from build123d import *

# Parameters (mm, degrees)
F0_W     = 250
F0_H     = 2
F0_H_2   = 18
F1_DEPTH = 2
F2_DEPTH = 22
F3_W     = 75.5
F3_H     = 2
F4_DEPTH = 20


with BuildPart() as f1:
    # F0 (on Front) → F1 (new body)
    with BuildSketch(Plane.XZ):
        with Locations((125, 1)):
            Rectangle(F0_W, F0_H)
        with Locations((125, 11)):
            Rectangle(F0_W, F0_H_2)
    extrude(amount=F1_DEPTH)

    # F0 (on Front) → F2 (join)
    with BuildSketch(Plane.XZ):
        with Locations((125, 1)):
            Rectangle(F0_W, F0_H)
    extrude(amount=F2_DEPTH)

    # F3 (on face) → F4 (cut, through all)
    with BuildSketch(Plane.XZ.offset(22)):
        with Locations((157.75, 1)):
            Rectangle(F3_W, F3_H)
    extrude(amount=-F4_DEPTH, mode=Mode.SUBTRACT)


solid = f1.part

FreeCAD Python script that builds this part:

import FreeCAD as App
import Part
import Sketcher

V = App.Vector
Q = App.Units.Quantity


def add_polygon(sketch, points):
    """Adds a closed chain of lines whose ends are joined by coincident constraints."""
    first, n = sketch.GeometryCount, len(points)
    for a, b in zip(points, points[1:] + points[:1]):
        sketch.addGeometry(Part.LineSegment(App.Vector(*a, 0), App.Vector(*b, 0)), False)
    for i in range(n):
        sketch.addConstraint(Sketcher.Constraint("Coincident", first + i, 2, first + (i + 1) % n, 1))

doc = App.newDocument("Part")
body = doc.addObject("PartDesign::Body", "Body")

# Sketch on XZ plane
sketch1 = doc.addObject("Sketcher::SketchObject", "Sketch")
body.addObject(sketch1)
sketch1.AttachmentSupport = (doc.XZ_Plane, [""])
sketch1.MapMode = "FlatFace"
add_polygon(sketch1, [(0, 0), (250, 0), (250, 20), (0, 20)])  # lines 0-3
sketch1.addConstraint([
    Sketcher.Constraint("Horizontal", 0),
    Sketcher.Constraint("Vertical", 1),
    Sketcher.Constraint("Horizontal", 2),
    Sketcher.Constraint("Vertical", 3),
    Sketcher.Constraint("Coincident", 3, 2, -1, 1),
    Sketcher.Constraint("DistanceX", 0, 1, 0, 2, Q("250 mm")),
    Sketcher.Constraint("DistanceY", 1, 1, 1, 2, Q("20 mm")),
])
pad1 = doc.addObject("PartDesign::Pad", "Pad")
body.addObject(pad1)
pad1.Profile = sketch1
pad1.Length = 2

# Sketch on XZ plane
sketch2 = doc.addObject("Sketcher::SketchObject", "Sketch001")
body.addObject(sketch2)
sketch2.AttachmentSupport = (doc.XZ_Plane, [""])
sketch2.MapMode = "FlatFace"
add_polygon(sketch2, [(0, 2), (0, 0), (250, 0), (250, 2)])  # lines 0-3
sketch2.addConstraint([
    Sketcher.Constraint("Vertical", 0),
    Sketcher.Constraint("Horizontal", 1),
    Sketcher.Constraint("Vertical", 2),
    Sketcher.Constraint("Horizontal", 3),
    Sketcher.Constraint("Coincident", 0, 2, -1, 1),
    Sketcher.Constraint("DistanceX", 1, 1, 1, 2, Q("250 mm")),
    Sketcher.Constraint("DistanceY", 0, 2, 0, 1, Q("2 mm")),
])
pad2 = doc.addObject("PartDesign::Pad", "Pad001")
body.addObject(pad2)
pad2.Profile = sketch2
pad2.Length = 22

# Sketch on XZ plane
sketch3 = doc.addObject("Sketcher::SketchObject", "Sketch002")
body.addObject(sketch3)
sketch3.AttachmentSupport = (doc.XZ_Plane, [""])
sketch3.MapMode = "FlatFace"
sketch3.AttachmentOffset = App.Placement(V(0, 0, 22), App.Rotation())
add_polygon(sketch3, [(120, 2), (120, 0), (195.5, 0), (195.5, 2)])  # lines 0-3
sketch3.addConstraint([
    Sketcher.Constraint("Vertical", 0),
    Sketcher.Constraint("Horizontal", 1),
    Sketcher.Constraint("Vertical", 2),
    Sketcher.Constraint("Horizontal", 3),
    Sketcher.Constraint("PointOnObject", 0, 2, -1),
    Sketcher.Constraint("DistanceY", 0, 2, 0, 1, Q("2 mm")),
    Sketcher.Constraint("DistanceX", 1, 1, 1, 2, Q("75.5 mm")),
    Sketcher.Constraint("DistanceX", -1, 1, 0, 2, Q("120 mm")),
])
pocket1 = doc.addObject("PartDesign::Pocket", "Pocket")
body.addObject(pocket1)
pocket1.Profile = sketch3
pocket1.Length = 20

doc.recompute()
